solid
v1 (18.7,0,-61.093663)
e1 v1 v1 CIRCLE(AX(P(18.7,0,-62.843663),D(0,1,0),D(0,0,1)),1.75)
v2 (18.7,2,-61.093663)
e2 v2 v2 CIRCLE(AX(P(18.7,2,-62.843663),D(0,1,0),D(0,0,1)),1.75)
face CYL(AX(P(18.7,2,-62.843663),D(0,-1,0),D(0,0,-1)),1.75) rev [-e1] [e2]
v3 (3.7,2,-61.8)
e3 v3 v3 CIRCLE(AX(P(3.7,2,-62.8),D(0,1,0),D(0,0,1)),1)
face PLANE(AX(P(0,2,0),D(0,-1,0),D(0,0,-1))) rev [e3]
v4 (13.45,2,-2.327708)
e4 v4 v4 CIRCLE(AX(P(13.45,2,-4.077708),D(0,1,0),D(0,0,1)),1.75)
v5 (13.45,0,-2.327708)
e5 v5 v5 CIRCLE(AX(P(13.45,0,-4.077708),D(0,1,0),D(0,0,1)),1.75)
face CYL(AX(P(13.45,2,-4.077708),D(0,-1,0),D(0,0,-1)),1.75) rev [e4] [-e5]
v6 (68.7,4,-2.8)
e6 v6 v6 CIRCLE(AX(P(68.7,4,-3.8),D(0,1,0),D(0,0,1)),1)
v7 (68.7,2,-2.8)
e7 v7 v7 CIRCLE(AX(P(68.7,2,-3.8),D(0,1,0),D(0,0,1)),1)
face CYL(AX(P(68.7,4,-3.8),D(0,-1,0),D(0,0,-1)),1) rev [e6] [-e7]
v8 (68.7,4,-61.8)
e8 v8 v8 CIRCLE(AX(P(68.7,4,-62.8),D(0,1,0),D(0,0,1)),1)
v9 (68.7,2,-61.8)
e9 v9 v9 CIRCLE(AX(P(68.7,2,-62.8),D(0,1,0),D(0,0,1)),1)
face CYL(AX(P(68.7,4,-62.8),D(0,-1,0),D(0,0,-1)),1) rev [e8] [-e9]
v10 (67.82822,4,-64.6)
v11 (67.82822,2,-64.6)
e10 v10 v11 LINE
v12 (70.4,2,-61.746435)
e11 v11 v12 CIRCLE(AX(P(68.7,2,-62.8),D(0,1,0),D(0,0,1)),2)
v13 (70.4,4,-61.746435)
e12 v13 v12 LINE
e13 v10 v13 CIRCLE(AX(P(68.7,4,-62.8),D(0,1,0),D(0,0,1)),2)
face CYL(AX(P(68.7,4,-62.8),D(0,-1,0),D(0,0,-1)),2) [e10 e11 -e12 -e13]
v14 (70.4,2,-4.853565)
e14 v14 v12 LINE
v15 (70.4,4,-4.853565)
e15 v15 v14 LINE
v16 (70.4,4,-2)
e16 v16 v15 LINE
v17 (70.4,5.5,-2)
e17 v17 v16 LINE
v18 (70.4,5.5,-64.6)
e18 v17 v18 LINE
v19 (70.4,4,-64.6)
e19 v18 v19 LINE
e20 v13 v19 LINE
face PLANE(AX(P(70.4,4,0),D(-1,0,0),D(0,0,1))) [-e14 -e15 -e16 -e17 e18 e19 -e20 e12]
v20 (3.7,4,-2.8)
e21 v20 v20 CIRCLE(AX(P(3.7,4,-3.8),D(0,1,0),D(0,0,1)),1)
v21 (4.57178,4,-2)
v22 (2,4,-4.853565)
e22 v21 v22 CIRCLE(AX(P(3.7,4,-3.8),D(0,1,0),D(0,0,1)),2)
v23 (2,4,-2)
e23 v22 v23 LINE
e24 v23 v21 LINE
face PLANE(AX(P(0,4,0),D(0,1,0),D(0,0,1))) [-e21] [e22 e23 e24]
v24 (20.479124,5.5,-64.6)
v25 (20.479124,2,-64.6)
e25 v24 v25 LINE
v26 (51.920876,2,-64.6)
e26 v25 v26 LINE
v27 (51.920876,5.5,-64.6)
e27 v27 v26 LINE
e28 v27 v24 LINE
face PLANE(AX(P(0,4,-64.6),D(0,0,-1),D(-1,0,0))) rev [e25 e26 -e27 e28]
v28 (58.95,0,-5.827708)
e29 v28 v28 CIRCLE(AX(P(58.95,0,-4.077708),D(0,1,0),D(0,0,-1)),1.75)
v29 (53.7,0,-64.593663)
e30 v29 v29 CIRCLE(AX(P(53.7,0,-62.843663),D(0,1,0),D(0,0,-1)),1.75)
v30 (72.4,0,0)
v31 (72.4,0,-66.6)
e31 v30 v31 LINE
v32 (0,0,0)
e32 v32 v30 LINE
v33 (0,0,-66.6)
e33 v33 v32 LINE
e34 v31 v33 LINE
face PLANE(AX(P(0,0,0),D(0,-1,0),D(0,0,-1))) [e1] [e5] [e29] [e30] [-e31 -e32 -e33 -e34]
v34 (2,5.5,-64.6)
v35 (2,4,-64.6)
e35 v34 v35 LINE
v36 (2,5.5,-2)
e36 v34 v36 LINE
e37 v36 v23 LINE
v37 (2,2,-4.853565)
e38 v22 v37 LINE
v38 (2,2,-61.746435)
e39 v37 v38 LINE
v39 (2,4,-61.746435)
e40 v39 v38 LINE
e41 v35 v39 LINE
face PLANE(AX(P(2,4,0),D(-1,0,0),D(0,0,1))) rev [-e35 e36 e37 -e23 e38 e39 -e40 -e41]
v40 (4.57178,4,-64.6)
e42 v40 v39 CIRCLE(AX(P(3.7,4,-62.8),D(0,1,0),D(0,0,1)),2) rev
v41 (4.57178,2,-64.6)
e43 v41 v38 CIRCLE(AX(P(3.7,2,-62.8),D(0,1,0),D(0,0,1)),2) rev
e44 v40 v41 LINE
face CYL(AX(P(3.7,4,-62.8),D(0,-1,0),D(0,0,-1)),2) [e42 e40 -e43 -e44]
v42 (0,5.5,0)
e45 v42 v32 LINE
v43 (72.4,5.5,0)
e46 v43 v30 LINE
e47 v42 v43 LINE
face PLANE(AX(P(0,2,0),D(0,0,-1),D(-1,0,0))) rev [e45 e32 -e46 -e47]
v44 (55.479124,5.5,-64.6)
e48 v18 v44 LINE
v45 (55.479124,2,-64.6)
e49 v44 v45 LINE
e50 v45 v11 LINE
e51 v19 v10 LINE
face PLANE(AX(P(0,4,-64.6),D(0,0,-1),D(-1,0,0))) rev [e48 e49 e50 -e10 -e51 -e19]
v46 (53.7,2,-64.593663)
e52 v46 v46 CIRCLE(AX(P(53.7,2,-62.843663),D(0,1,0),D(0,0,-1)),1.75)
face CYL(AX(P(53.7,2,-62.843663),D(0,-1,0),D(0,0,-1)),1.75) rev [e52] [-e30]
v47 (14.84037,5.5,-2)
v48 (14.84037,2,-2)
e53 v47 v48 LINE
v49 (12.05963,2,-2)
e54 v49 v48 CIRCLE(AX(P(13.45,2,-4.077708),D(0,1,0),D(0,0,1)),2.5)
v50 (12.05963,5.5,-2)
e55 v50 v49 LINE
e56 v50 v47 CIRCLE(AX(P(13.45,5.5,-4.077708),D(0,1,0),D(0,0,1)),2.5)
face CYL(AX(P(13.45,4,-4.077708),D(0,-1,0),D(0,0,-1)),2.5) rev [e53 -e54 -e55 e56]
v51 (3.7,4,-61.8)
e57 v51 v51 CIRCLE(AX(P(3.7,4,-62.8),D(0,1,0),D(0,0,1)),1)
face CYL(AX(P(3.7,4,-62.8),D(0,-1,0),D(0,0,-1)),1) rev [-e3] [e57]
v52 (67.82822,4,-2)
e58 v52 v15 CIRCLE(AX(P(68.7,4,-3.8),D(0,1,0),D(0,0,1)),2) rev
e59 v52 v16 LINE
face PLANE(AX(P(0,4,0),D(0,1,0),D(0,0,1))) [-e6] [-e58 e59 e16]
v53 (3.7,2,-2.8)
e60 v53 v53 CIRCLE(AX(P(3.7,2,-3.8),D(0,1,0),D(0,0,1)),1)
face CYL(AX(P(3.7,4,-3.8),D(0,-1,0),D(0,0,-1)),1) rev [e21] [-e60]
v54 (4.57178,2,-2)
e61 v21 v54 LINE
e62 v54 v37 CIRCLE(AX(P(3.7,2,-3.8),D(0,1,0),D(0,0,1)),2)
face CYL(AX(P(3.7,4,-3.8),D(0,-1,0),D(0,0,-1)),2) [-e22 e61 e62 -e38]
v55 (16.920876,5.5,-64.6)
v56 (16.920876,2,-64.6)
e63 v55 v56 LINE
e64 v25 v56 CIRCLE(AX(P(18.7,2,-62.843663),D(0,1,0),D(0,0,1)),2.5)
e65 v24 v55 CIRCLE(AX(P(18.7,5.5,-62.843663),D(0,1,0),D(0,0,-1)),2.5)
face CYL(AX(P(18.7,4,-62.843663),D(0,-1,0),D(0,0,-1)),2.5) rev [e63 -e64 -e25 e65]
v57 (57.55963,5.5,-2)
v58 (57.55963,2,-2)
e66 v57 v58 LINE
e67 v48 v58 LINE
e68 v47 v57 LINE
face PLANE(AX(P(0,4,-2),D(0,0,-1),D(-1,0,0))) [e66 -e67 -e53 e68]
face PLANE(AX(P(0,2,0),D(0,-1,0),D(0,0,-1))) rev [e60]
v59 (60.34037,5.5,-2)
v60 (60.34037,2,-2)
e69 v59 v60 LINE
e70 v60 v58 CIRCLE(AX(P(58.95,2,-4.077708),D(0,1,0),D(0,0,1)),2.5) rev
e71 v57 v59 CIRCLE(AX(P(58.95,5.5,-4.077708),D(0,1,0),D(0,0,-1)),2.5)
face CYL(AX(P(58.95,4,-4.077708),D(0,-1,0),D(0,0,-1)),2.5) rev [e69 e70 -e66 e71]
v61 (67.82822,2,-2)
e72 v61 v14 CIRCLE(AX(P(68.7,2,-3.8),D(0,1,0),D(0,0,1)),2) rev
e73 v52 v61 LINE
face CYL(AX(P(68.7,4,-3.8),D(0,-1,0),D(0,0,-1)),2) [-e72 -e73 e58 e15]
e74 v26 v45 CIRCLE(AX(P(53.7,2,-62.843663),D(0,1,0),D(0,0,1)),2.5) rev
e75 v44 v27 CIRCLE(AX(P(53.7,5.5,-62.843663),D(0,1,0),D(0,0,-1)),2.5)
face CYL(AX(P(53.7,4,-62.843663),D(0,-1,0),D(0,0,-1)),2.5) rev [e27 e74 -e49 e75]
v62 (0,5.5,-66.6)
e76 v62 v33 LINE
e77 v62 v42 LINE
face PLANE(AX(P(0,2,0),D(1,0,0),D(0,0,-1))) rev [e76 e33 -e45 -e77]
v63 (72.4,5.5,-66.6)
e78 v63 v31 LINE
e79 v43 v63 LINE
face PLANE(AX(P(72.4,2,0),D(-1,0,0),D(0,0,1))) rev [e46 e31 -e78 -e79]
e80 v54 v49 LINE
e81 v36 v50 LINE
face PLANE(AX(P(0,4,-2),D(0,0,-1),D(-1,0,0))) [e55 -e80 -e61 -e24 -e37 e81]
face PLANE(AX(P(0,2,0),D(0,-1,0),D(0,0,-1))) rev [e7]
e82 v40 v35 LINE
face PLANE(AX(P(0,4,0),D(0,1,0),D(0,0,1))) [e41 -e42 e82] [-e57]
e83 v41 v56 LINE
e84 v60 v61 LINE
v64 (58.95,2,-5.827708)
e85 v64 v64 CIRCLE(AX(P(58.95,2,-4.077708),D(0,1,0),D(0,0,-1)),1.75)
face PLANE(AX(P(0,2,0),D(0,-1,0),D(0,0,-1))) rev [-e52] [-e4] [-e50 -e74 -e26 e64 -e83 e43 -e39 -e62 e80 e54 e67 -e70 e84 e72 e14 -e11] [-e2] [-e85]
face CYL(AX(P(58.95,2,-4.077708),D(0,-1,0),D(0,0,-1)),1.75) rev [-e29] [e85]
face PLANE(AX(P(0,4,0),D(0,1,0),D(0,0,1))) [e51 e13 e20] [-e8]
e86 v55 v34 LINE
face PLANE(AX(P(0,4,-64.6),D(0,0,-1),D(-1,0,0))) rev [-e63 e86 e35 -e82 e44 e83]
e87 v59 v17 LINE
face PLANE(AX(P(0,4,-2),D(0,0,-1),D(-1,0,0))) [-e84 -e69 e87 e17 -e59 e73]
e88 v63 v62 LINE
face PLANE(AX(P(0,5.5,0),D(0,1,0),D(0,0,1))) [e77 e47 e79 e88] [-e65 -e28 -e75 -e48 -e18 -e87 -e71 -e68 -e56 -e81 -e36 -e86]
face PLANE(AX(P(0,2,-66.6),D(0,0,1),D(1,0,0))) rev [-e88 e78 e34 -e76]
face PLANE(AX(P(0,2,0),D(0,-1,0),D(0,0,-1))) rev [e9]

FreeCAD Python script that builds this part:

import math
import FreeCAD as App
import Part
import Sketcher
from FreeCAD import Vector
Q = App.Units.Quantity

doc = App.newDocument("Part")
params = doc.addObject("Spreadsheet::Sheet", "Params")
for row, (alias, value) in enumerate([
    ("sketch1_diameter", "3.5 mm"),
    ("sketch1_width", "72.4 mm"),
    ("sketch1_height", "66.6 mm"),
    ("pad1_length", "2 mm"),
    ("sketch2_diameter", "2 mm"),
    ("sketch2_radius", "2 mm"),
    ("sketch2_radius2", "2.5 mm"),
    ("sketch2_width", "72.4 mm"),
    ("sketch2_height", "66.6 mm"),
    ("pad2_length", "2 mm"),
    ("sketch3_radius", "2.5 mm"),
    ("sketch3_width", "72.4 mm"),
    ("sketch3_height", "66.6 mm"),
    ("sketch3_height2", "62.6 mm"),
    ("pad3_length", "1.5 mm"),
], start=1):
    params.set(f"A{row}", alias)
    params.set(f"B{row}", "=" + value)
    params.setAlias(f"B{row}", alias)

body = doc.addObject("PartDesign::Body", "Body")

# Sketch on XZ plane
sketch1 = body.newObject("Sketcher::SketchObject", "Sketch")
sketch1.AttachmentSupport = (doc.getObject("XZ_Plane"), [""])
sketch1.MapMode = "FlatFace"
sketch1.addGeometry([
    Part.LineSegment(Vector(0, -66.6, 0), Vector(0, 0, 0)),  # 0
    Part.LineSegment(Vector(0, 0, 0), Vector(72.4, 0, 0)),  # 1
    Part.LineSegment(Vector(72.4, 0, 0), Vector(72.4, -66.6, 0)),  # 2
    Part.LineSegment(Vector(72.4, -66.6, 0), Vector(0, -66.6, 0)),  # 3
    Part.Circle(Vector(13.4, -4.1, 0), Vector(0, 0, 1), 1.8),  # 4
    Part.Circle(Vector(59, -4.1, 0), Vector(0, 0, 1), 1.8),  # 5
    Part.Circle(Vector(18.7, -62.8, 0), Vector(0, 0, 1), 1.8),  # 6
    Part.Circle(Vector(53.7, -62.8, 0), Vector(0, 0, 1), 1.8),  # 7
], False)
sketch1.addConstraint([
    Sketcher.Constraint("Coincident", 0, 2, 1, 1),
    Sketcher.Constraint("Coincident", 1, 2, 2, 1),
    Sketcher.Constraint("Coincident", 2, 2, 3, 1),
    Sketcher.Constraint("Coincident", 3, 2, 0, 1),
    Sketcher.Constraint("Vertical", 0),
    Sketcher.Constraint("Horizontal", 1),
    Sketcher.Constraint("Vertical", 2),
    Sketcher.Constraint("Horizontal", 3),
    Sketcher.Constraint("Coincident", 0, 2, -1, 1),
    Sketcher.Constraint("Equal", 4, 5),
    Sketcher.Constraint("Equal", 5, 6),
    Sketcher.Constraint("Equal", 6, 7),
    Sketcher.Constraint("Horizontal", 4, 3, 5, 3),
    Sketcher.Constraint("Horizontal", 6, 3, 7, 3),
    Sketcher.Constraint("Diameter", 4, Q("3.5 mm")),
    Sketcher.Constraint("DistanceX", 1, 1, 1, 2, Q("72.4 mm")),
    Sketcher.Constraint("DistanceY", 0, 1, 0, 2, Q("66.6 mm")),
    Sketcher.Constraint("DistanceX", 6, 3, 7, 3, Q("35 mm")),
    Sketcher.Constraint("DistanceX", -1, 1, 6, 3, Q("18.7 mm")),
    Sketcher.Constraint("DistanceX", 4, 3, 5, 3, Q("45.5 mm")),
    Sketcher.Constraint("DistanceX", -1, 1, 4, 3, Q("13.45 mm")),
    Sketcher.Constraint("DistanceY", 4, 3, -1, 1, Q("4.077708 mm")),
    Sketcher.Constraint("DistanceY", 6, 3, -1, 1, Q("62.843663 mm")),
])
sketch1.setExpression("Constraints[14]", "Params.sketch1_diameter")
sketch1.setExpression("Constraints[15]", "Params.sketch1_width")
sketch1.setExpression("Constraints[16]", "Params.sketch1_height")
pad1 = body.newObject("PartDesign::Pad", "Pad")
pad1.Profile = sketch1
pad1.setExpression("Length", "Params.pad1_length")
pad1.Reversed = True

# Sketch on XZ plane
sketch2 = body.newObject("Sketcher::SketchObject", "Sketch001")
sketch2.AttachmentSupport = (doc.getObject("XZ_Plane"), [""])
sketch2.MapMode = "FlatFace"
sketch2.AttachmentOffset = App.Placement(Vector(0, 0, -2), App.Rotation())
sketch2.addGeometry([
    Part.LineSegment(Vector(0, -66.6, 0), Vector(0, 0, 0)),  # 0
    Part.LineSegment(Vector(0, 0, 0), Vector(72.4, 0, 0)),  # 1
    Part.LineSegment(Vector(72.4, 0, 0), Vector(72.4, -66.6, 0)),  # 2
    Part.LineSegment(Vector(72.4, -66.6, 0), Vector(0, -66.6, 0)),  # 3
    Part.Circle(Vector(3.7, -3.8, 0), Vector(0, 0, 1), 1),  # 4
    Part.Circle(Vector(68.7, -3.8, 0), Vector(0, 0, 1), 1),  # 5
    Part.Circle(Vector(3.7, -62.8, 0), Vector(0, 0, 1), 1),  # 6
    Part.ArcOfCircle(Part.Circle(Vector(13.4, -4.1, 0), Vector(0, 0, 1), 2.5), math.radians(56), math.radians(124)),  # 7
    Part.LineSegment(Vector(12.1, -2, 0), Vector(4.6, -2, 0)),  # 8
    Part.ArcOfCircle(Part.Circle(Vector(3.7, -3.8, 0), Vector(0, 0, 1), 2), math.radians(-148), math.radians(64)),  # 9
    Part.LineSegment(Vector(2, -4.9, 0), Vector(2, -61.7, 0)),  # 10
    Part.ArcOfCircle(Part.Circle(Vector(3.7, -62.8, 0), Vector(0, 0, 1), 2), math.radians(-64), math.radians(148)),  # 11
    Part.LineSegment(Vector(4.6, -64.6, 0), Vector(16.9, -64.6, 0)),  # 12
    Part.ArcOfCircle(Part.Circle(Vector(18.7, -62.8, 0), Vector(0, 0, 1), 2.5), math.radians(-135), math.radians(-45)),  # 13
    Part.LineSegment(Vector(20.5, -64.6, 0), Vector(51.9, -64.6, 0)),  # 14
    Part.ArcOfCircle(Part.Circle(Vector(53.7, -62.8, 0), Vector(0, 0, 1), 2.5), math.radians(-135), math.radians(-45)),  # 15
    Part.LineSegment(Vector(55.5, -64.6, 0), Vector(67.8, -64.6, 0)),  # 16
    Part.ArcOfCircle(Part.Circle(Vector(68.7, -62.8, 0), Vector(0, 0, 1), 2), math.radians(32), math.radians(244)),  # 17
    Part.LineSegment(Vector(70.4, -61.7, 0), Vector(70.4, -4.9, 0)),  # 18
    Part.ArcOfCircle(Part.Circle(Vector(68.7, -3.8, 0), Vector(0, 0, 1), 2), math.radians(116), math.radians(328)),  # 19
    Part.LineSegment(Vector(67.8, -2, 0), Vector(60.3, -2, 0)),  # 20
    Part.ArcOfCircle(Part.Circle(Vector(59, -4.1, 0), Vector(0, 0, 1), 2.5), math.radians(56), math.radians(124)),  # 21
    Part.LineSegment(Vector(57.6, -2, 0), Vector(14.8, -2, 0)),  # 22
    Part.Circle(Vector(68.7, -62.8, 0), Vector(0, 0, 1), 1),  # 23
], False)
sketch2.addConstraint([
    Sketcher.Constraint("Coincident", 0, 2, 1, 1),
    Sketcher.Constraint("Coincident", 1, 2, 2, 1),
    Sketcher.Constraint("Coincident", 2, 2, 3, 1),
    Sketcher.Constraint("Coincident", 3, 2, 0, 1),
    Sketcher.Constraint("Coincident", 7, 2, 8, 1),
    Sketcher.Constraint("Coincident", 8, 2, 9, 2),
    Sketcher.Constraint("Coincident", 9, 1, 10, 1),
    Sketcher.Constraint("Coincident", 10, 2, 11, 2),
    Sketcher.Constraint("Coincident", 11, 1, 12, 1),
    Sketcher.Constraint("Coincident", 12, 2, 13, 1),
    Sketcher.Constraint("Coincident", 13, 2, 14, 1),
    Sketcher.Constraint("Coincident", 14, 2, 15, 1),
    Sketcher.Constraint("Coincident", 15, 2, 16, 1),
    Sketcher.Constraint("Coincident", 16, 2, 17, 2),
    Sketcher.Constraint("Coincident", 17, 1, 18, 1),
    Sketcher.Constraint("Coincident", 18, 2, 19, 2),
    Sketcher.Constraint("Coincident", 19, 1, 20, 1),
    Sketcher.Constraint("Coincident", 20, 2, 21, 1),
    Sketcher.Constraint("Coincident", 21, 2, 22, 1),
    Sketcher.Constraint("Coincident", 22, 2, 7, 1),
    Sketcher.Constraint("Vertical", 0),
    Sketcher.Constraint("Horizontal", 1),
    Sketcher.Constraint("Vertical", 2),
    Sketcher.Constraint("Horizontal", 3),
    Sketcher.Constraint("Horizontal", 8),
    Sketcher.Constraint("Vertical", 10),
    Sketcher.Constraint("Horizontal", 12),
    Sketcher.Constraint("Horizontal", 14),
    Sketcher.Constraint("Horizontal", 16),
    Sketcher.Constraint("Vertical", 18),
    Sketcher.Constraint("Horizontal", 20),
    Sketcher.Constraint("Horizontal", 22),
    Sketcher.Constraint("Coincident", 0, 2, -1, 1),
    Sketcher.Constraint("Coincident", 9, 3, 4, 3),
    Sketcher.Constraint("Coincident", 11, 3, 6, 3),
    Sketcher.Constraint("Coincident", 19, 3, 5, 3),
    Sketcher.Constraint("Coincident", 23, 3, 17, 3),
    Sketcher.Constraint("Equal", 4, 5),
    Sketcher.Constraint("Equal", 5, 6),
    Sketcher.Constraint("Equal", 9, 11),
    Sketcher.Constraint("Equal", 7, 13),
    Sketcher.Constraint("Equal", 13, 15),
    Sketcher.Constraint("Equal", 11, 17),
    Sketcher.Constraint("Equal", 17, 19),
    Sketcher.Constraint("Equal", 15, 21),
    Sketcher.Constraint("Equal", 6, 23),
    Sketcher.Constraint("Horizontal", 4, 3, 5, 3),
    Sketcher.Constraint("Horizontal", 13, 3, 15, 3),
    Sketcher.Constraint("Horizontal", 11, 3, 17, 3),
    Sketcher.Constraint("Horizontal", 7, 3, 21, 3),
    Sketcher.Constraint("Horizontal", 12, 2, 13, 2),
    Sketcher.Constraint("Horizontal", 14, 2, 15, 2),
    Sketcher.Constraint("Horizontal", 10, 2, 17, 1),
    Sketcher.Constraint("Horizontal", 9, 1, 18, 2),
    Sketcher.Constraint("Horizontal", 8, 2, 19, 1),
    Sketcher.Constraint("Horizontal", 20, 2, 21, 2),
    Sketcher.Constraint("Vertical", 4, 3, 6, 3),
    Sketcher.Constraint("Vertical", 8, 2, 11, 1),
    Sketcher.Constraint("Equal", 12, 16),
    Sketcher.Constraint("Equal", 8, 20),
    Sketcher.Constraint("Diameter", 4, Q("2 mm")),
    Sketcher.Constraint("Radius", 9, Q("2 mm")),
    Sketcher.Constraint("Radius", 7, Q("2.5 mm")),
    Sketcher.Constraint("DistanceX", 1, 1, 1, 2, Q("72.4 mm")),
    Sketcher.Constraint("DistanceY", 0, 1, 0, 2, Q("66.6 mm")),
    Sketcher.Constraint("DistanceY", 7, 2, -1, 1, Q("2 mm")),
    Sketcher.Constraint("DistanceX", -1, 1, 9, 1, Q("2 mm")),
    Sketcher.Constraint("DistanceX", 4, 3, 5, 3, Q("65 mm")),
    Sketcher.Constraint("DistanceY", 6, 3, 4, 3, Q("59 mm")),
    Sketcher.Constraint("DistanceX", 6, 3, 13, 3, Q("15 mm")),
    Sketcher.Constraint("DistanceY", 3, 2, 11, 1, Q("2 mm")),
    Sketcher.Constraint("DistanceX", 17, 1, 2, 2, Q("2 mm")),
    Sketcher.Constraint("DistanceX", 7, 3, 21, 3, Q("45.5 mm")),
    Sketcher.Constraint("DistanceX", 8, 2, 8, 1, Q("7.48785 mm")),
    Sketcher.Constraint("DistanceX", 12, 1, 12, 2, Q("12.349096 mm")),
])
sketch2.setExpression("Constraints[60]", "Params.sketch2_diameter")
sketch2.setExpression("Constraints[61]", "Params.sketch2_radius")
sketch2.setExpression("Constraints[62]", "Params.sketch2_radius2")
sketch2.setExpression("Constraints[63]", "Params.sketch2_width")
sketch2.setExpression("Constraints[64]", "Params.sketch2_height")
pad2 = body.newObject("PartDesign::Pad", "Pad001")
pad2.Profile = sketch2
pad2.setExpression("Length", "Params.pad2_length")
pad2.Reversed = True

# Sketch on XZ plane
sketch3 = body.newObject("Sketcher::SketchObject", "Sketch002")
sketch3.AttachmentSupport = (doc.getObject("XZ_Plane"), [""])
sketch3.MapMode = "FlatFace"
sketch3.AttachmentOffset = App.Placement(Vector(0, 0, -4), App.Rotation())
sketch3.addGeometry([
    Part.LineSegment(Vector(0, -66.6, 0), Vector(0, 0, 0)),  # 0
    Part.LineSegment(Vector(0, 0, 0), Vector(72.4, 0, 0)),  # 1
    Part.LineSegment(Vector(72.4, 0, 0), Vector(72.4, -66.6, 0)),  # 2
    Part.LineSegment(Vector(72.4, -66.6, 0), Vector(0, -66.6, 0)),  # 3
    Part.ArcOfCircle(Part.Circle(Vector(13.4, -4.1, 0), Vector(0, 0, 1), 2.5), math.radians(56), math.radians(124)),  # 4
    Part.LineSegment(Vector(12.1, -2, 0), Vector(2, -2, 0)),  # 5
    Part.LineSegment(Vector(2, -2, 0), Vector(2, -64.6, 0)),  # 6
    Part.LineSegment(Vector(2, -64.6, 0), Vector(16.9, -64.6, 0)),  # 7
    Part.ArcOfCircle(Part.Circle(Vector(18.7, -62.8, 0), Vector(0, 0, 1), 2.5), math.radians(-135), math.radians(-45)),  # 8
    Part.LineSegment(Vector(20.5, -64.6, 0), Vector(51.9, -64.6, 0)),  # 9
    Part.ArcOfCircle(Part.Circle(Vector(53.7, -62.8, 0), Vector(0, 0, 1), 2.5), math.radians(-135), math.radians(-45)),  # 10
    Part.LineSegment(Vector(55.5, -64.6, 0), Vector(70.4, -64.6, 0)),  # 11
    Part.LineSegment(Vector(70.4, -64.6, 0), Vector(70.4, -2, 0)),  # 12
    Part.LineSegment(Vector(70.4, -2, 0), Vector(60.3, -2, 0)),  # 13
    Part.ArcOfCircle(Part.Circle(Vector(59, -4.1, 0), Vector(0, 0, 1), 2.5), math.radians(56), math.radians(124)),  # 14
    Part.LineSegment(Vector(57.6, -2, 0), Vector(14.8, -2, 0)),  # 15
], False)
sketch3.addConstraint([
    Sketcher.Constraint("Coincident", 0, 2, 1, 1),
    Sketcher.Constraint("Coincident", 1, 2, 2, 1),
    Sketcher.Constraint("Coincident", 2, 2, 3, 1),
    Sketcher.Constraint("Coincident", 3, 2, 0, 1),
    Sketcher.Constraint("Coincident", 4, 2, 5, 1),
    Sketcher.Constraint("Coincident", 5, 2, 6, 1),
    Sketcher.Constraint("Coincident", 6, 2, 7, 1),
    Sketcher.Constraint("Coincident", 7, 2, 8, 1),
    Sketcher.Constraint("Coincident", 8, 2, 9, 1),
    Sketcher.Constraint("Coincident", 9, 2, 10, 1),
    Sketcher.Constraint("Coincident", 10, 2, 11, 1),
    Sketcher.Constraint("Coincident", 11, 2, 12, 1),
    Sketcher.Constraint("Coincident", 12, 2, 13, 1),
    Sketcher.Constraint("Coincident", 13, 2, 14, 1),
    Sketcher.Constraint("Coincident", 14, 2, 15, 1),
    Sketcher.Constraint("Coincident", 15, 2, 4, 1),
    Sketcher.Constraint("Vertical", 0),
    Sketcher.Constraint("Horizontal", 1),
    Sketcher.Constraint("Vertical", 2),
    Sketcher.Constraint("Horizontal", 3),
    Sketcher.Constraint("Horizontal", 5),
    Sketcher.Constraint("Vertical", 6),
    Sketcher.Constraint("Horizontal", 7),
    Sketcher.Constraint("Horizontal", 9),
    Sketcher.Constraint("Horizontal", 11),
    Sketcher.Constraint("Vertical", 12),
    Sketcher.Constraint("Horizontal", 13),
    Sketcher.Constraint("Horizontal", 15),
    Sketcher.Constraint("Coincident", 0, 2, -1, 1),
    Sketcher.Constraint("Equal", 4, 8),
    Sketcher.Constraint("Equal", 8, 10),
    Sketcher.Constraint("Equal", 10, 14),
    Sketcher.Constraint("Horizontal", 8, 3, 10, 3),
    Sketcher.Constraint("Horizontal", 4, 3, 14, 3),
    Sketcher.Constraint("Horizontal", 7, 2, 8, 2),
    Sketcher.Constraint("Horizontal", 9, 2, 10, 2),
    Sketcher.Constraint("Horizontal", 5, 2, 12, 2),
    Sketcher.Constraint("Horizontal", 13, 2, 14, 2),
    Sketcher.Constraint("Equal", 7, 11),
    Sketcher.Constraint("Equal", 5, 13),
    Sketcher.Constraint("Radius", 4, Q("2.5 mm")),
    Sketcher.Constraint("DistanceX", 1, 1, 1, 2, Q("72.4 mm")),
    Sketcher.Constraint("DistanceY", 0, 1, 0, 2, Q("66.6 mm")),
    Sketcher.Constraint("DistanceY", 6, 2, 6, 1, Q("62.6 mm")),
    Sketcher.Constraint("DistanceY", 4, 2, -1, 1, Q("2 mm")),
    Sketcher.Constraint("DistanceX", -1, 1, 5, 2, Q("2 mm")),
    Sketcher.Constraint("DistanceX", 8, 3, 10, 3, Q("35 mm")),
    Sketcher.Constraint("DistanceX", 11, 2, 2, 2, Q("2 mm")),
    Sketcher.Constraint("DistanceX", 4, 3, 14, 3, Q("45.5 mm")),
    Sketcher.Constraint("DistanceX", 5, 2, 5, 1, Q("10.05963 mm")),
    Sketcher.Constraint("DistanceX", 7, 1, 7, 2, Q("14.920876 mm")),
])
sketch3.setExpression("Constraints[40]", "Params.sketch3_radius")
sketch3.setExpression("Constraints[41]", "Params.sketch3_width")
sketch3.setExpression("Constraints[42]", "Params.sketch3_height")
sketch3.setExpression("Constraints[43]", "Params.sketch3_height2")
pad3 = body.newObject("PartDesign::Pad", "Pad002")
pad3.Profile = sketch3
pad3.setExpression("Length", "Params.pad3_length")
pad3.Reversed = True

doc.recompute()
